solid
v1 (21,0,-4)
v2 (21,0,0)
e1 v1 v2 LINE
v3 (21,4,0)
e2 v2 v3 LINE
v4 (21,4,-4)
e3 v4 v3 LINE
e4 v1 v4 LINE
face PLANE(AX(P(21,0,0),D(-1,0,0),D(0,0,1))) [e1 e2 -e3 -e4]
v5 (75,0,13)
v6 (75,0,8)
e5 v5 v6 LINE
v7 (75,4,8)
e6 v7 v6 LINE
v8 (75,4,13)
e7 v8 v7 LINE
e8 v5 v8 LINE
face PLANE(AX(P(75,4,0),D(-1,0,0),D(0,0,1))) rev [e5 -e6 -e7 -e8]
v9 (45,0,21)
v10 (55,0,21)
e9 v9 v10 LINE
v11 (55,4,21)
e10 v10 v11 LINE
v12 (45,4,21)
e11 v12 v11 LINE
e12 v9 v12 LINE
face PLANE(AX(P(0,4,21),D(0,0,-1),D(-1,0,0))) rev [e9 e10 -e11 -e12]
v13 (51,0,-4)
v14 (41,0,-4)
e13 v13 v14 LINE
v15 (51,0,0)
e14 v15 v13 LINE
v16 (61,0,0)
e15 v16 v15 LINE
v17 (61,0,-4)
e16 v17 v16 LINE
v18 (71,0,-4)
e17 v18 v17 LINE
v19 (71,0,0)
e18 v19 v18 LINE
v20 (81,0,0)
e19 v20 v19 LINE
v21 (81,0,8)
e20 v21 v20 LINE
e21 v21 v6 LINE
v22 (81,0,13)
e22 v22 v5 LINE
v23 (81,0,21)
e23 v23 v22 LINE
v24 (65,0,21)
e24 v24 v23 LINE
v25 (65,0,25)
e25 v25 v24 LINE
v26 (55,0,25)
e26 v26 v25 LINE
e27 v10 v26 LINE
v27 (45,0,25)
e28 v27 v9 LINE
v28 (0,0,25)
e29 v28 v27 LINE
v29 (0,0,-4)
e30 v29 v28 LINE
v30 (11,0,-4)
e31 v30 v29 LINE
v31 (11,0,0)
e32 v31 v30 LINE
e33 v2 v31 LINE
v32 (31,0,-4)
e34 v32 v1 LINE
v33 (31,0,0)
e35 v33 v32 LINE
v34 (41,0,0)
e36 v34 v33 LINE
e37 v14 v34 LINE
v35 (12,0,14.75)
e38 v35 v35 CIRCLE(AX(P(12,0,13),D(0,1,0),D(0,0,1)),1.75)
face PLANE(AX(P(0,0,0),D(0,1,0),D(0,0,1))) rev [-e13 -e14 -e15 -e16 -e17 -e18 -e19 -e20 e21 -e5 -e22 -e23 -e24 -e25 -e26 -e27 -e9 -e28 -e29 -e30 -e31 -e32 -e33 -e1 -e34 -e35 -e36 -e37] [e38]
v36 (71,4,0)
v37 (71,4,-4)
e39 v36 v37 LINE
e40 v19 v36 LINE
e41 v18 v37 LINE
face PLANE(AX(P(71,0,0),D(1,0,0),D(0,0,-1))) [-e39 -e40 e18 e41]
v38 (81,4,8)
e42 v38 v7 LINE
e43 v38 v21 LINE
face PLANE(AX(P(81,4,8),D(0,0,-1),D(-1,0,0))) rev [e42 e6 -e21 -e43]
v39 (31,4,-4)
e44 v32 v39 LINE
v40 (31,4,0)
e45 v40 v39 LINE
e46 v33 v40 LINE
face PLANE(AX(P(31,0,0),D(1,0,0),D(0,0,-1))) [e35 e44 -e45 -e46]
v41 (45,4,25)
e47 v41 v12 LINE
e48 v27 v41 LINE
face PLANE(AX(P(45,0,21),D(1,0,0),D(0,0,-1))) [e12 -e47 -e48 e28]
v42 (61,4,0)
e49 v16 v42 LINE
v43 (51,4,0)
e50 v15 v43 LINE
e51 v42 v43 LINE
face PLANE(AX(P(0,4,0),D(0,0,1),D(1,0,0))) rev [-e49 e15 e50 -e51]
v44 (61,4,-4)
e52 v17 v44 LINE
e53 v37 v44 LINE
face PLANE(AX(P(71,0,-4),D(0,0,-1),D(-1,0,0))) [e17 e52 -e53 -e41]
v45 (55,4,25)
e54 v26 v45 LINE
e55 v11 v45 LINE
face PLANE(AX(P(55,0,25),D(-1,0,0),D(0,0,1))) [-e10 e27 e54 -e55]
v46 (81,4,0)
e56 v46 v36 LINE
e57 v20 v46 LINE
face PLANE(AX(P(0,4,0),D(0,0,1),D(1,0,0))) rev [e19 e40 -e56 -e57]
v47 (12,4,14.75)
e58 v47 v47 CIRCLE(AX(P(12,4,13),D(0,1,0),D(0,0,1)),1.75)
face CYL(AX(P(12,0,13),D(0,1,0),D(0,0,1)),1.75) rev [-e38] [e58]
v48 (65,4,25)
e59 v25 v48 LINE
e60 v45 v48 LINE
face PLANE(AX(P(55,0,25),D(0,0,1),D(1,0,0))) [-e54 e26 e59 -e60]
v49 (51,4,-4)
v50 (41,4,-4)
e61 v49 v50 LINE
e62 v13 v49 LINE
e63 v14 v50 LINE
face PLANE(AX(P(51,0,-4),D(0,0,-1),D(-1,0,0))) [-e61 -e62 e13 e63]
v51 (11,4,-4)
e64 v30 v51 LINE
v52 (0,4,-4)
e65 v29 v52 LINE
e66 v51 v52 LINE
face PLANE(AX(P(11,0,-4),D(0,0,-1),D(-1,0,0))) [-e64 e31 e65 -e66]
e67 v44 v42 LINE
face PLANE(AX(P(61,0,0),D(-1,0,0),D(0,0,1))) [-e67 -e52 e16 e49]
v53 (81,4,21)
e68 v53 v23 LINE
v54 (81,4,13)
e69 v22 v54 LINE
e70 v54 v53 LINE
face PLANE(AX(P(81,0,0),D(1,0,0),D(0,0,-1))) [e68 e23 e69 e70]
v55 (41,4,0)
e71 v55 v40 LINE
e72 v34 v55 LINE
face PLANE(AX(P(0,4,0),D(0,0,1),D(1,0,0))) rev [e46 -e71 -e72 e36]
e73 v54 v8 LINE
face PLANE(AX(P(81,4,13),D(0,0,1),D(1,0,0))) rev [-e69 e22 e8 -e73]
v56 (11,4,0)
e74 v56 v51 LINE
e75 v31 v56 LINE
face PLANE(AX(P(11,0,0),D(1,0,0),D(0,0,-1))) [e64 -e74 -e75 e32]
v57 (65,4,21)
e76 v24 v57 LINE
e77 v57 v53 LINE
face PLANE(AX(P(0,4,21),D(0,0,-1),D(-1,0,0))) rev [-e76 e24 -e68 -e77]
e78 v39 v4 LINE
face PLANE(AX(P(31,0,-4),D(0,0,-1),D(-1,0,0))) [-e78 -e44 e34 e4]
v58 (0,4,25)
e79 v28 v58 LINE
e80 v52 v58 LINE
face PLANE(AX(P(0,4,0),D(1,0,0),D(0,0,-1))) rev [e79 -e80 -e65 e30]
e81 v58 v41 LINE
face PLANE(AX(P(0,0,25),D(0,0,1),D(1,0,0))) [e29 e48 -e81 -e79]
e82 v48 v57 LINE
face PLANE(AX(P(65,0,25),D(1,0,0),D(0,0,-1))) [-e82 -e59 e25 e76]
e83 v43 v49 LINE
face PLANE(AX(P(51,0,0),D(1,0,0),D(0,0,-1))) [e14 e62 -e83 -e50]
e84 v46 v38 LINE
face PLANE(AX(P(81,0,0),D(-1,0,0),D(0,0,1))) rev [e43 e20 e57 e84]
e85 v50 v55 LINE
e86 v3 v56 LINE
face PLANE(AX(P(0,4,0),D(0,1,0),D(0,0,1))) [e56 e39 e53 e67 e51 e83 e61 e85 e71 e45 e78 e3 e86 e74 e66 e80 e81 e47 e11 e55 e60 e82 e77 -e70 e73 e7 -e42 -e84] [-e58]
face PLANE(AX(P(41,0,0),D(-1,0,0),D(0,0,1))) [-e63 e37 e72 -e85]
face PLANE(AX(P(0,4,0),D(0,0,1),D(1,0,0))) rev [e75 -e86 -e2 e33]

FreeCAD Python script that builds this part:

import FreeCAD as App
import Part
import Sketcher
from FreeCAD import Vector

doc = App.newDocument("Part")
body = doc.addObject("PartDesign::Body", "Body")

sketch1 = body.newObject("Sketcher::SketchObject", "Sketch")
sketch1.AttachmentSupport = (doc.getObject("XZ_Plane"), [""])
sketch1.MapMode = "FlatFace"
sketch1.addGeometry([
    Part.LineSegment(Vector(0, 0, 0), Vector(0, 21, 0)),
    Part.LineSegment(Vector(0, 21, 0), Vector(75, 21, 0)),
    Part.LineSegment(Vector(75, 21, 0), Vector(75, 0, 0)),
    Part.LineSegment(Vector(75, 0, 0), Vector(0, 0, 0)),
], False)
sketch1.addConstraint([
    Sketcher.Constraint("Coincident", 0, 2, 1, 1),
    Sketcher.Constraint("Coincident", 1, 2, 2, 1),
    Sketcher.Constraint("Coincident", 2, 2, 3, 1),
    Sketcher.Constraint("Coincident", 3, 2, 0, 1),
    Sketcher.Constraint("Vertical", 0),
    Sketcher.Constraint("Horizontal", 1),
    Sketcher.Constraint("Vertical", 2),
    Sketcher.Constraint("Horizontal", 3),
    Sketcher.Constraint("Coincident", 3, 2, -1, 1),
    Sketcher.Constraint("DistanceX", 1, 1, 1, 2, 75.0),
    Sketcher.Constraint("DistanceY", 0, 1, 0, 2, 21.0),
])
pad1 = body.newObject("PartDesign::Pad", "Pad")
pad1.Profile = sketch1
pad1.Length = 4
pad1.Reversed = True

sketch2 = body.newObject("Sketcher::SketchObject", "Sketch001")
sketch2.AttachmentSupport = (doc.getObject("YZ_Plane"), [""])
sketch2.MapMode = "FlatFace"
sketch2.AttachmentOffset = App.Placement(Vector(0, 0, 75), App.Rotation())
sketch2.addGeometry([
    Part.LineSegment(Vector(4, 21, 0), Vector(0, 21, 0)),
    Part.LineSegment(Vector(0, 21, 0), Vector(0, 13, 0)),
    Part.LineSegment(Vector(0, 13, 0), Vector(4, 13, 0)),
    Part.LineSegment(Vector(4, 13, 0), Vector(4, 21, 0)),
    Part.LineSegment(Vector(4, 8, 0), Vector(0, 8, 0)),
    Part.LineSegment(Vector(0, 8, 0), Vector(0, 0, 0)),
    Part.LineSegment(Vector(0, 0, 0), Vector(4, 0, 0)),
    Part.LineSegment(Vector(4, 0, 0), Vector(4, 8, 0)),
], False)
sketch2.addConstraint([
    Sketcher.Constraint("Coincident", 0, 2, 1, 1),
    Sketcher.Constraint("Coincident", 1, 2, 2, 1),
    Sketcher.Constraint("Coincident", 2, 2, 3, 1),
    Sketcher.Constraint("Coincident", 3, 2, 0, 1),
    Sketcher.Constraint("Coincident", 4, 2, 5, 1),
    Sketcher.Constraint("Coincident", 5, 2, 6, 1),
    Sketcher.Constraint("Coincident", 6, 2, 7, 1),
    Sketcher.Constraint("Coincident", 7, 2, 4, 1),
    Sketcher.Constraint("Horizontal", 0),
    Sketcher.Constraint("Vertical", 1),
    Sketcher.Constraint("Horizontal", 2),
    Sketcher.Constraint("Vertical", 3),
    Sketcher.Constraint("Horizontal", 4),
    Sketcher.Constraint("Vertical", 5),
    Sketcher.Constraint("Horizontal", 6),
    Sketcher.Constraint("Vertical", 7),
    Sketcher.Constraint("Coincident", 5, 2, -1, 1),
    Sketcher.Constraint("PointOnObject", 0, 2, -2),
    Sketcher.Constraint("Vertical", 3, 2, 6, 2),
    Sketcher.Constraint("Equal", 3, 5),
    Sketcher.Constraint("DistanceX", 0, 2, 0, 1, 4.0),
    Sketcher.Constraint("DistanceY", 1, 2, 1, 1, 8.0),
    Sketcher.Constraint("DistanceY", -1, 1, 0, 2, 21.0),
])
pad2 = body.newObject("PartDesign::Pad", "Pad001")
pad2.Profile = sketch2
pad2.Length = 6

sketch3 = body.newObject("Sketcher::SketchObject", "Sketch002")
sketch3.AttachmentSupport = (doc.getObject("XZ_Plane"), [""])
sketch3.MapMode = "FlatFace"
sketch3.AttachmentOffset = App.Placement(Vector(0, 0, -4), App.Rotation())
sketch3.addGeometry([
    Part.LineSegment(Vector(61, -4, 0), Vector(61, 0, 0)),
    Part.LineSegment(Vector(61, 0, 0), Vector(71, 0, 0)),
    Part.LineSegment(Vector(71, 0, 0), Vector(71, -4, 0)),
    Part.LineSegment(Vector(71, -4, 0), Vector(61, -4, 0)),
], False)
sketch3.addConstraint([
    Sketcher.Constraint("Coincident", 0, 2, 1, 1),
    Sketcher.Constraint("Coincident", 1, 2, 2, 1),
    Sketcher.Constraint("Coincident", 2, 2, 3, 1),
    Sketcher.Constraint("Coincident", 3, 2, 0, 1),
    Sketcher.Constraint("Vertical", 0),
    Sketcher.Constraint("Horizontal", 1),
    Sketcher.Constraint("Vertical", 2),
    Sketcher.Constraint("Horizontal", 3),
    Sketcher.Constraint("PointOnObject", 0, 2, -1),
    Sketcher.Constraint("DistanceX", 1, 1, 1, 2, 10.0),
    Sketcher.Constraint("DistanceY", 0, 1, 0, 2, 4.0),
    Sketcher.Constraint("DistanceX", -1, 1, 0, 2, 61.0),
])
pad3 = body.newObject("PartDesign::Pad", "Pad002")
pad3.Profile = sketch3
pad3.Length = 4
doc.recompute()

linearpattern = body.newObject("PartDesign::LinearPattern", "LinearPattern")
linearpattern.Originals = [pad3]
linearpattern.Direction = (doc.getObject("X_Axis"), [""])
linearpattern.Mode = "offset"
linearpattern.Offset = 20
linearpattern.Occurrences = 4
linearpattern.Reversed = True
body.Tip = linearpattern

sketch4 = body.newObject("Sketcher::SketchObject", "Sketch003")
sketch4.AttachmentSupport = (doc.getObject("XZ_Plane"), [""])
sketch4.MapMode = "FlatFace"
sketch4.AttachmentOffset = App.Placement(Vector(0, 0, -4), App.Rotation())
sketch4.addGeometry([
    Part.LineSegment(Vector(0, -4, 0), Vector(0, 0, 0)),
    Part.LineSegment(Vector(0, 0, 0), Vector(1, 0, 0)),
    Part.LineSegment(Vector(1, 0, 0), Vector(1, -4, 0)),
    Part.LineSegment(Vector(1, -4, 0), Vector(0, -4, 0)),
], False)
sketch4.addConstraint([
    Sketcher.Constraint("Coincident", 0, 2, 1, 1),
    Sketcher.Constraint("Coincident", 1, 2, 2, 1),
    Sketcher.Constraint("Coincident", 2, 2, 3, 1),
    Sketcher.Constraint("Coincident", 3, 2, 0, 1),
    Sketcher.Constraint("Vertical", 0),
    Sketcher.Constraint("Horizontal", 1),
    Sketcher.Constraint("Vertical", 2),
    Sketcher.Constraint("Horizontal", 3),
    Sketcher.Constraint("Coincident", 0, 2, -1, 1),
    Sketcher.Constraint("DistanceX", 1, 1, 1, 2, 1.0),
    Sketcher.Constraint("DistanceY", 0, 1, 0, 2, 4.0),
])
pad4 = body.newObject("PartDesign::Pad", "Pad003")
pad4.Profile = sketch4
pad4.Length = 4

sketch5 = body.newObject("Sketcher::SketchObject", "Sketch004")
sketch5.AttachmentSupport = (doc.getObject("XZ_Plane"), [""])
sketch5.MapMode = "FlatFace"
sketch5.AttachmentOffset = App.Placement(Vector(0, 0, -4), App.Rotation())
sketch5.addGeometry([
    Part.LineSegment(Vector(0, 21, 0), Vector(0, 25, 0)),
    Part.LineSegment(Vector(0, 25, 0), Vector(45, 25, 0)),
    Part.LineSegment(Vector(45, 25, 0), Vector(45, 21, 0)),
    Part.LineSegment(Vector(45, 21, 0), Vector(0, 21, 0)),
    Part.LineSegment(Vector(55, 21, 0), Vector(55, 25, 0)),
    Part.LineSegment(Vector(55, 25, 0), Vector(65, 25, 0)),
    Part.LineSegment(Vector(65, 25, 0), Vector(65, 21, 0)),
    Part.LineSegment(Vector(65, 21, 0), Vector(55, 21, 0)),
], False)
sketch5.addConstraint([
    Sketcher.Constraint("Coincident", 0, 2, 1, 1),
    Sketcher.Constraint("Coincident", 1, 2, 2, 1),
    Sketcher.Constraint("Coincident", 2, 2, 3, 1),
    Sketcher.Constraint("Coincident", 3, 2, 0, 1),
    Sketcher.Constraint("Coincident", 4, 2, 5, 1),
    Sketcher.Constraint("Coincident", 5, 2, 6, 1),
    Sketcher.Constraint("Coincident", 6, 2, 7, 1),
    Sketcher.Constraint("Coincident", 7, 2, 4, 1),
    Sketcher.Constraint("Vertical", 0),
    Sketcher.Constraint("Horizontal", 1),
    Sketcher.Constraint("Vertical", 2),
    Sketcher.Constraint("Horizontal", 3),
    Sketcher.Constraint("Vertical", 4),
    Sketcher.Constraint("Horizontal", 5),
    Sketcher.Constraint("Vertical", 6),
    Sketcher.Constraint("Horizontal", 7),
    Sketcher.Constraint("PointOnObject", 0, 2, -2),
    Sketcher.Constraint("Horizontal", 1, 2, 4, 2),
    Sketcher.Constraint("Horizontal", 3, 2, 6, 2),
    Sketcher.Constraint("DistanceX", 1, 1, 1, 2, 45.0),
    Sketcher.Constraint("DistanceX", 5, 1, 5, 2, 10.0),
    Sketcher.Constraint("DistanceY", 0, 1, 0, 2, 4.0),
    Sketcher.Constraint("DistanceY", -1, 1, 0, 2, 25.0),
    Sketcher.Constraint("DistanceX", -1, 1, 4, 2, 55.0),
])
pad5 = body.newObject("PartDesign::Pad", "Pad004")
pad5.Profile = sketch5
pad5.Length = 4

sketch6 = body.newObject("Sketcher::SketchObject", "Sketch005")
sketch6.AttachmentSupport = (doc.getObject("XZ_Plane"), [""])
sketch6.MapMode = "FlatFace"
sketch6.AttachmentOffset = App.Placement(Vector(0, 0, -4), App.Rotation())
sketch6.addGeometry(Part.Circle(Vector(12, 13, 0), Vector(0, 0, 1), 1.8), False)
sketch6.addConstraint([
    Sketcher.Constraint("Diameter", 0, 3.5),
    Sketcher.Constraint("DistanceX", -1, 1, 0, 3, 12.0),
    Sketcher.Constraint("DistanceY", -1, 1, 0, 3, 13.0),
])
pocket1 = body.newObject("PartDesign::Pocket", "Pocket")
pocket1.Profile = sketch6
pocket1.Type = "ThroughAll"
pocket1.Reversed = True

doc.recompute()
